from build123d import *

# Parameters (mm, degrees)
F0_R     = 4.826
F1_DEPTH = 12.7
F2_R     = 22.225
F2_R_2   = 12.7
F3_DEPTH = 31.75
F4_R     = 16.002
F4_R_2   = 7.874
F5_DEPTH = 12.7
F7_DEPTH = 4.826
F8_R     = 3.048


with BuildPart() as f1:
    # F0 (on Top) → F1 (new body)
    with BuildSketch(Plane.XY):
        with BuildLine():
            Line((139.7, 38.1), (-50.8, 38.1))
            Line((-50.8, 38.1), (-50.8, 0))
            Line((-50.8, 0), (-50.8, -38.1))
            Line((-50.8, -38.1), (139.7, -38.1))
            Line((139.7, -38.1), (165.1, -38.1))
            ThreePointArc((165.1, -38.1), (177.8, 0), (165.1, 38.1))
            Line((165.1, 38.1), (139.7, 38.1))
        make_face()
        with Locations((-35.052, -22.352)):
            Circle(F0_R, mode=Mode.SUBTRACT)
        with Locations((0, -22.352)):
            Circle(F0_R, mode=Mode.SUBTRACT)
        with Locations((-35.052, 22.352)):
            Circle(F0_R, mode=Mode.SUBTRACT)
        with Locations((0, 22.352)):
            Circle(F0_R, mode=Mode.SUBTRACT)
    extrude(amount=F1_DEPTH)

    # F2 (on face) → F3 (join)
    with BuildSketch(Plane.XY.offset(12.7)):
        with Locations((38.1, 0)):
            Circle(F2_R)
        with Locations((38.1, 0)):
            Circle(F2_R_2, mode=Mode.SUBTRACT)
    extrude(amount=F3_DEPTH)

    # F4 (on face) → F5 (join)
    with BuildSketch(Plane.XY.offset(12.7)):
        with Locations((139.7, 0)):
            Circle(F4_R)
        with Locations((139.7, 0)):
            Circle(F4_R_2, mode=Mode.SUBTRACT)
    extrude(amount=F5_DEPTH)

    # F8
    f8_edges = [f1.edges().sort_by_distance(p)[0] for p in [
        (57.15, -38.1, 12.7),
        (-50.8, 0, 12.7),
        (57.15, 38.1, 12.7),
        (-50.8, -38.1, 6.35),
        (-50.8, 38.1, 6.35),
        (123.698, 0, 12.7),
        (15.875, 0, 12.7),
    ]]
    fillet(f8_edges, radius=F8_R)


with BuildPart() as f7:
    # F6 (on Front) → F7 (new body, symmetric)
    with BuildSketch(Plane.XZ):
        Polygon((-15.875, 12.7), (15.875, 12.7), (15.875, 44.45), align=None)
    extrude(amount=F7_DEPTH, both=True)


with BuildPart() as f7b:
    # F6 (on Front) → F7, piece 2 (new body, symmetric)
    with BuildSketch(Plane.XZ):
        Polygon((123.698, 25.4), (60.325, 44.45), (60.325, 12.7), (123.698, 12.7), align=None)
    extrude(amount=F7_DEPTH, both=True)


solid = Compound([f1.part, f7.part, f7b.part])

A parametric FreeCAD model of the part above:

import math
import FreeCAD as App
import Part
import Sketcher

V = App.Vector
Q = App.Units.Quantity


def edges_at(feature, points):
    """Names of the edges that pass closest to the given points."""
    edges = feature.Shape.Edges
    near = lambda p: min(range(len(edges)), key=lambda i: edges[i].distToShape(Part.Vertex(*p))[0])
    return sorted({f"Edge{near(p) + 1}" for p in points})

doc = App.newDocument("Part")
body = doc.addObject("PartDesign::Body", "Body")

# Sketch on XY plane
sketch1 = body.newObject("Sketcher::SketchObject", "Sketch")
sketch1.AttachmentSupport = (doc.getObject("XY_Plane"), [""])
sketch1.MapMode = "FlatFace"
sketch1.addGeometry(Part.LineSegment(V(-50.8, 38.1, 0), V(-50.8, -38.1, 0)), False)
sketch1.addGeometry(Part.LineSegment(V(-50.8, -38.1, 0), V(165.1, -38.1, 0)), False)
sketch1.addGeometry(Part.ArcOfCircle(Part.Circle(V(114.3, 0, 0), V(0, 0, 1), 63.5), math.radians(-37), math.radians(37)), False)
sketch1.addGeometry(Part.LineSegment(V(165.1, 38.1, 0), V(-50.8, 38.1, 0)), False)
sketch1.addGeometry(Part.Circle(V(-35.1, -22.4, 0), V(0, 0, 1), 4.8), False)
sketch1.addGeometry(Part.Circle(V(0, -22.4, 0), V(0, 0, 1), 4.8), False)
sketch1.addGeometry(Part.Circle(V(-35.1, 22.4, 0), V(0, 0, 1), 4.8), False)
sketch1.addGeometry(Part.Circle(V(0, 22.4, 0), V(0, 0, 1), 4.8), False)
sketch1.addConstraint(Sketcher.Constraint("Coincident", 0, 2, 1, 1))
sketch1.addConstraint(Sketcher.Constraint("Coincident", 1, 2, 2, 1))
sketch1.addConstraint(Sketcher.Constraint("Coincident", 2, 2, 3, 1))
sketch1.addConstraint(Sketcher.Constraint("Coincident", 3, 2, 0, 1))
sketch1.addConstraint(Sketcher.Constraint("Vertical", 0))
sketch1.addConstraint(Sketcher.Constraint("Horizontal", 1))
sketch1.addConstraint(Sketcher.Constraint("Horizontal", 3))
sketch1.addConstraint(Sketcher.Constraint("Equal", 4, 5))
sketch1.addConstraint(Sketcher.Constraint("Equal", 5, 6))
sketch1.addConstraint(Sketcher.Constraint("Equal", 6, 7))
sketch1.addConstraint(Sketcher.Constraint("Symmetric", 5, 3, 7, 3, -1, 1))
sketch1.addConstraint(Sketcher.Constraint("Symmetric", 4, 3, 6, 3, -1))
sketch1.addConstraint(Sketcher.Constraint("Symmetric", 1, 2, 2, 2, -1))
sketch1.addConstraint(Sketcher.Constraint("PointOnObject", 5, 3, -2))
sketch1.addConstraint(Sketcher.Constraint("Horizontal", 4, 3, 5, 3))
sketch1.addConstraint(Sketcher.Constraint("Radius", 2, Q("2.5 in")))
sketch1.addConstraint(Sketcher.Constraint("Diameter", 4, Q("0.38 in")))
sketch1.addConstraint(Sketcher.Constraint("DistanceY", 0, 2, 0, 1, Q("3 in")))
sketch1.addConstraint(Sketcher.Constraint("DistanceX", 1, 1, 1, 2, Q("8.5 in")))
sketch1.addConstraint(Sketcher.Constraint("DistanceX", 0, 2, -1, 1, Q("2 in")))
sketch1.addConstraint(Sketcher.Constraint("DistanceX", 4, 3, -1, 1, Q("1.38 in")))
sketch1.addConstraint(Sketcher.Constraint("DistanceY", 4, 3, -1, 1, Q("0.88 in")))
pad1 = body.newObject("PartDesign::Pad", "Pad")
pad1.Profile = sketch1
pad1.Length = Q("0.5 in")

# Sketch on XY plane
sketch2 = body.newObject("Sketcher::SketchObject", "Sketch001")
sketch2.AttachmentSupport = (doc.getObject("XY_Plane"), [""])
sketch2.MapMode = "FlatFace"
sketch2.AttachmentOffset = App.Placement(V(0, 0, 0.5 * 25.4), App.Rotation())
sketch2.addGeometry(Part.Circle(V(38, 0, 0), V(0, 0, 1), 22), False)
sketch2.addGeometry(Part.Circle(V(38, 0, 0), V(0, 0, 1), 13), False)
sketch2.addConstraint(Sketcher.Constraint("Coincident", 1, 3, 0, 3))
sketch2.addConstraint(Sketcher.Constraint("PointOnObject", 0, 3, -1))
sketch2.addConstraint(Sketcher.Constraint("Diameter", 1, Q("1 in")))
sketch2.addConstraint(Sketcher.Constraint("Diameter", 0, Q("1.75 in")))
sketch2.addConstraint(Sketcher.Constraint("DistanceX", -1, 1, 0, 3, Q("1.5 in")))
pad2 = body.newObject("PartDesign::Pad", "Pad001")
pad2.Profile = sketch2
pad2.Length = Q("1.25 in")

# Sketch on XY plane
sketch3 = body.newObject("Sketcher::SketchObject", "Sketch002")
sketch3.AttachmentSupport = (doc.getObject("XY_Plane"), [""])
sketch3.MapMode = "FlatFace"
sketch3.AttachmentOffset = App.Placement(V(0, 0, 0.5 * 25.4), App.Rotation())
sketch3.addGeometry(Part.Circle(V(140, 0, 0), V(0, 0, 1), 16), False)
sketch3.addGeometry(Part.Circle(V(140, 0, 0), V(0, 0, 1), 8), False)
sketch3.addConstraint(Sketcher.Constraint("Coincident", 1, 3, 0, 3))
sketch3.addConstraint(Sketcher.Constraint("PointOnObject", 0, 3, -1))
sketch3.addConstraint(Sketcher.Constraint("Diameter", 0, Q("1.26 in")))
sketch3.addConstraint(Sketcher.Constraint("Diameter", 1, Q("0.62 in")))
sketch3.addConstraint(Sketcher.Constraint("DistanceX", -1, 1, 0, 3, Q("5.5 in")))
pad3 = body.newObject("PartDesign::Pad", "Pad002")
pad3.Profile = sketch3
pad3.Length = Q("0.5 in")
doc.recompute()

fillet = body.newObject("PartDesign::Fillet", "Fillet")
fillet.Base = (pad3, edges_at(pad3, [
    (57.15, -38.1, 12.7),
    (-50.8, 0, 12.7),
    (57.15, 38.1, 12.7),
    (-50.8, -38.1, 6.35),
    (-50.8, 38.1, 6.35),
    (123.698, 0, 12.7),
    (15.875, 0, 12.7),
]))
fillet.Radius = Q("0.12 in")
body2 = doc.addObject("PartDesign::Body", "Body001")

# Sketch on XZ plane
sketch4 = body2.newObject("Sketcher::SketchObject", "Sketch003")
sketch4.AttachmentSupport = (doc.getObject("XZ_Plane001"), [""])
sketch4.MapMode = "FlatFace"
sketch4.addGeometry(Part.LineSegment(V(-16, 13, 0), V(16, 13, 0)), False)
sketch4.addGeometry(Part.LineSegment(V(16, 13, 0), V(16, 44, 0)), False)
sketch4.addGeometry(Part.LineSegment(V(16, 44, 0), V(-16, 13, 0)), False)
sketch4.addConstraint(Sketcher.Constraint("Coincident", 0, 2, 1, 1))
sketch4.addConstraint(Sketcher.Constraint("Coincident", 1, 2, 2, 1))
sketch4.addConstraint(Sketcher.Constraint("Coincident", 2, 2, 0, 1))
sketch4.addConstraint(Sketcher.Constraint("Horizontal", 0))
sketch4.addConstraint(Sketcher.Constraint("Vertical", 1))
sketch4.addConstraint(Sketcher.Constraint("Equal", 0, 1))
sketch4.addConstraint(Sketcher.Constraint("DistanceX", 0, 1, 0, 2, Q("1.25 in")))
sketch4.addConstraint(Sketcher.Constraint("DistanceY", -1, 1, 0, 2, Q("0.5 in")))
sketch4.addConstraint(Sketcher.Constraint("DistanceX", -1, 1, 0, 2, Q("0.625 in")))
pad4 = body2.newObject("PartDesign::Pad", "Pad003")
pad4.Profile = sketch4
pad4.Length = Q("0.38 in")
pad4.Midplane = True
body3 = doc.addObject("PartDesign::Body", "Body002")

# Sketch on XZ plane
sketch5 = body3.newObject("Sketcher::SketchObject", "Sketch004")
sketch5.AttachmentSupport = (doc.getObject("XZ_Plane002"), [""])
sketch5.MapMode = "FlatFace"
sketch5.addGeometry(Part.LineSegment(V(124, 25, 0), V(60, 44, 0)), False)
sketch5.addGeometry(Part.LineSegment(V(60, 44, 0), V(60, 13, 0)), False)
sketch5.addGeometry(Part.LineSegment(V(60, 13, 0), V(124, 13, 0)), False)
sketch5.addGeometry(Part.LineSegment(V(124, 13, 0), V(124, 25, 0)), False)
sketch5.addConstraint(Sketcher.Constraint("Coincident", 0, 2, 1, 1))
sketch5.addConstraint(Sketcher.Constraint("Coincident", 1, 2, 2, 1))
sketch5.addConstraint(Sketcher.Constraint("Coincident", 2, 2, 3, 1))
sketch5.addConstraint(Sketcher.Constraint("Coincident", 3, 2, 0, 1))
sketch5.addConstraint(Sketcher.Constraint("Vertical", 1))
sketch5.addConstraint(Sketcher.Constraint("Horizontal", 2))
sketch5.addConstraint(Sketcher.Constraint("Vertical", 3))
sketch5.addConstraint(Sketcher.Constraint("DistanceY", 3, 1, 3, 2, Q("0.5 in")))
sketch5.addConstraint(Sketcher.Constraint("DistanceY", -1, 1, 3, 2, Q("1 in")))
sketch5.addConstraint(Sketcher.Constraint("DistanceY", 1, 2, 1, 1, Q("1.25 in")))
sketch5.addConstraint(Sketcher.Constraint("DistanceX", 2, 1, 2, 2, Q("2.495 in")))
sketch5.addConstraint(Sketcher.Constraint("DistanceX", -1, 1, 2, 2, Q("4.87 in")))
pad5 = body3.newObject("PartDesign::Pad", "Pad004")
pad5.Profile = sketch5
pad5.Length = Q("0.38 in")
pad5.Midplane = True

doc.recompute()
